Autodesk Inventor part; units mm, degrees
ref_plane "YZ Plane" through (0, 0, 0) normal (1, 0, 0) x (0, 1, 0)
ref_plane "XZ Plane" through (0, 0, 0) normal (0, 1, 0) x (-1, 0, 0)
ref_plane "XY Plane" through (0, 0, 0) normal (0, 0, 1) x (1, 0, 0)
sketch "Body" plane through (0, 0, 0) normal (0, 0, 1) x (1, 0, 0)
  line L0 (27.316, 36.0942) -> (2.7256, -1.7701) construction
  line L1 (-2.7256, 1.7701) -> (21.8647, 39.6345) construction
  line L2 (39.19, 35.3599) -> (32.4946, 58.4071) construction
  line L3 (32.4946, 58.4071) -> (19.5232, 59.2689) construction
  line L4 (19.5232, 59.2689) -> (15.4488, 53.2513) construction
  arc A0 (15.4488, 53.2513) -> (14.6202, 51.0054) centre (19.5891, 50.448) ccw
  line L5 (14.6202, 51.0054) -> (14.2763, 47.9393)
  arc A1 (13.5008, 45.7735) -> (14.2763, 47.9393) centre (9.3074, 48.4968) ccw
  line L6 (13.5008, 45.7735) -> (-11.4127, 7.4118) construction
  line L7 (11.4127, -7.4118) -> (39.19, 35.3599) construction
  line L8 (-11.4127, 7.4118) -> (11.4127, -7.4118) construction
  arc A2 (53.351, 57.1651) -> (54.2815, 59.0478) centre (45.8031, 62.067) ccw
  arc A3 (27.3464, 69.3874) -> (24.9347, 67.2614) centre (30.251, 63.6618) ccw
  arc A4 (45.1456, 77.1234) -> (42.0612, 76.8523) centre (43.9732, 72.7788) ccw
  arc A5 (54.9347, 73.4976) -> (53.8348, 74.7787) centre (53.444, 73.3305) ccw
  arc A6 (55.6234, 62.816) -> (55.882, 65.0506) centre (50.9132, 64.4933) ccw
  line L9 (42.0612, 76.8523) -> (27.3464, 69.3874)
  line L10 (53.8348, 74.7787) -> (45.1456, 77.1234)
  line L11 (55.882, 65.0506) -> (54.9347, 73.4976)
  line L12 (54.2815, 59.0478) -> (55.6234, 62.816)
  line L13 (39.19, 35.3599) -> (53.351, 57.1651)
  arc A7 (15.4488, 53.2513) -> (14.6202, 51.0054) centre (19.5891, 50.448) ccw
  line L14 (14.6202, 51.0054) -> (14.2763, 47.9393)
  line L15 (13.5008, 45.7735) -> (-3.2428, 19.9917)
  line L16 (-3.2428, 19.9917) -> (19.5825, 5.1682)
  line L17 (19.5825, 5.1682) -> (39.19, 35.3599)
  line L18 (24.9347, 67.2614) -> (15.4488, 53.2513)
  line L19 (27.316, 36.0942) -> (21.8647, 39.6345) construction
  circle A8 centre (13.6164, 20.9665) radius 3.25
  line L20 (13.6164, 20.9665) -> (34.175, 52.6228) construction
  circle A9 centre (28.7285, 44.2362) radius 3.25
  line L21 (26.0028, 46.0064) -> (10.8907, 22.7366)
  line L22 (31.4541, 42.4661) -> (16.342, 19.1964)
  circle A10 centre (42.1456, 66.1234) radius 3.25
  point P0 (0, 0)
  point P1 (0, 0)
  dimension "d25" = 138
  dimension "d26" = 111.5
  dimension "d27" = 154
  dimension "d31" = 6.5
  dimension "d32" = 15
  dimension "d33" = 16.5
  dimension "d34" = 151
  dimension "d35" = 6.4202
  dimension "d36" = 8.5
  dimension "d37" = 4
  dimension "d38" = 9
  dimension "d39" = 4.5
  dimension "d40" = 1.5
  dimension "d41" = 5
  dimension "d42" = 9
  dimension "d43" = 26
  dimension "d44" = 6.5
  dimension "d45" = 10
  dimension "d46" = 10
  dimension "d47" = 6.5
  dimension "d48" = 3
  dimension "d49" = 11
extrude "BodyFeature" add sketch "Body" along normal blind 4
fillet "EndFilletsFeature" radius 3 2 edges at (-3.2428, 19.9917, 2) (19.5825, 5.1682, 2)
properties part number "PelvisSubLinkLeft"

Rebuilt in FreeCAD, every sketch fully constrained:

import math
import FreeCAD as App
import Part
import Sketcher
from FreeCAD import Vector


def edges_at(feature, points):
    """Names of the edges that pass closest to the given points."""
    edges = feature.Shape.Edges
    near = lambda p: min(range(len(edges)), key=lambda i: edges[i].distToShape(Part.Vertex(*p))[0])
    return sorted({f"Edge{near(p) + 1}" for p in points})

doc = App.newDocument("Part")
body = doc.addObject("PartDesign::Body", "Body")

sketch1 = body.newObject("Sketcher::SketchObject", "Sketch")
sketch1.AttachmentSupport = (doc.getObject("XY_Plane"), [""])
sketch1.MapMode = "FlatFace"
sketch1.addGeometry([
    Part.LineSegment(Vector(24.9347, 67.2614, 0), Vector(15.4488, 53.2513, 0)),
    Part.ArcOfCircle(Part.Circle(Vector(19.5891, 50.448, 0), Vector(0, 0, 1), 5.000057), math.radians(145.898993), math.radians(173.599447)),
    Part.LineSegment(Vector(14.6202, 51.0054, 0), Vector(14.2763, 47.9393, 0)),
    Part.ArcOfCircle(Part.Circle(Vector(9.3074, 48.4968, 0), Vector(0, 0, 1), 5.000097), math.radians(-33.000713), math.radians(-6.401692)),
    Part.LineSegment(Vector(13.5008, 45.7735, 0), Vector(-3.2428, 19.9917, 0)),
    Part.LineSegment(Vector(-3.2428, 19.9917, 0), Vector(19.5825, 5.1682, 0)),
    Part.LineSegment(Vector(19.5825, 5.1682, 0), Vector(39.19, 35.3599, 0)),
    Part.LineSegment(Vector(39.19, 35.3599, 0), Vector(53.351, 57.1651, 0)),
    Part.ArcOfCircle(Part.Circle(Vector(45.805163, 62.065826, 0), Vector(0, 0, 1), 8.997598), math.radians(-33.002146), math.radians(-19.598427)),
    Part.LineSegment(Vector(54.2815, 59.0478, 0), Vector(55.6234, 62.816, 0)),
    Part.ArcOfCircle(Part.Circle(Vector(50.9132, 64.4933, 0), Vector(0, 0, 1), 4.999932), math.radians(-19.60079), math.radians(6.399542)),
    Part.LineSegment(Vector(55.882, 65.0506, 0), Vector(54.9347, 73.4976, 0)),
    Part.ArcOfCircle(Part.Circle(Vector(53.444, 73.3305, 0), Vector(0, 0, 1), 1.500036), math.radians(6.39587), math.radians(74.898316)),
    Part.LineSegment(Vector(53.8348, 74.7787, 0), Vector(45.1456, 77.1234, 0)),
    Part.ArcOfCircle(Part.Circle(Vector(43.9732, 72.7788, 0), Vector(0, 0, 1), 4.500008), math.radians(74.898316), math.radians(115.144198)),
    Part.LineSegment(Vector(42.0612, 76.8523, 0), Vector(27.3464, 69.3874, 0)),
    Part.ArcOfCircle(Part.Circle(Vector(30.251671, 63.660811, 0), Vector(0, 0, 1), 6.421403), math.radians(116.900051), math.radians(145.894614)),
    Part.ArcOfCircle(Part.Circle(Vector(13.6164, 20.9665, 0), Vector(0, 0, 1), 3.25), math.radians(146.999856), math.radians(326.998896)),
    Part.LineSegment(Vector(10.8907, 22.7366, 0), Vector(26.0028, 46.0064, 0)),
    Part.ArcOfCircle(Part.Circle(Vector(28.7285, 44.2362, 0), Vector(0, 0, 1), 3.25), math.radians(-33.001104), math.radians(146.998378)),
    Part.LineSegment(Vector(31.4541, 42.4661, 0), Vector(16.342, 19.1964, 0)),
    Part.Circle(Vector(42.1456, 66.1234, 0), Vector(0, 0, 1), 3.25),
], False)
sketch1.addConstraint([
    Sketcher.Constraint("Coincident", 0, 2, 1, 1),
    Sketcher.Constraint("Coincident", 1, 2, 2, 1),
    Sketcher.Constraint("Coincident", 2, 2, 3, 2),
    Sketcher.Constraint("Coincident", 3, 1, 4, 1),
    Sketcher.Constraint("Coincident", 4, 2, 5, 1),
    Sketcher.Constraint("Coincident", 5, 2, 6, 1),
    Sketcher.Constraint("Coincident", 6, 2, 7, 1),
    Sketcher.Constraint("Coincident", 7, 2, 8, 1),
    Sketcher.Constraint("Coincident", 8, 2, 9, 1),
    Sketcher.Constraint("Coincident", 9, 2, 10, 1),
    Sketcher.Constraint("Coincident", 10, 2, 11, 1),
    Sketcher.Constraint("Coincident", 11, 2, 12, 1),
    Sketcher.Constraint("Coincident", 12, 2, 13, 1),
    Sketcher.Constraint("Coincident", 13, 2, 14, 1),
    Sketcher.Constraint("Coincident", 14, 2, 15, 1),
    Sketcher.Constraint("Coincident", 15, 2, 16, 1),
    Sketcher.Constraint("Coincident", 16, 2, 0, 1),
    Sketcher.Constraint("Coincident", 17, 1, 18, 1),
    Sketcher.Constraint("Coincident", 18, 2, 19, 2),
    Sketcher.Constraint("Coincident", 19, 1, 20, 1),
    Sketcher.Constraint("Coincident", 20, 2, 17, 2),
    Sketcher.Constraint("Radius", 1, 5.0),
    Sketcher.Constraint("Radius", 3, 5.0),
    Sketcher.Constraint("Radius", 10, 5.0),
    Sketcher.Constraint("Diameter", 21, 6.5),
    Sketcher.Constraint("Radius", 12, 1.5),
    Sketcher.Constraint("Radius", 14, 4.5),
    Sketcher.Constraint("Radius", 17, 3.25),
    Sketcher.Constraint("Radius", 19, 3.25),
    Sketcher.Constraint("Distance", 7, 26.0),
    Sketcher.Constraint("Distance", 9, 4.0),
    Sketcher.Constraint("Distance", 13, 9.0),
    Sketcher.Constraint("DistanceX", 21, 3, 13, 2, 3.0),
    Sketcher.Constraint("DistanceY", 21, 3, 13, 2, 11.0),
    Sketcher.Constraint("Distance", 11, 8.5),
    Sketcher.Constraint("Distance", 15, 16.5),
    Sketcher.Constraint("Distance", 6, 36.0),
    Sketcher.Constraint("DistanceY", 14, 3, 12, 2, 2.0),
    Sketcher.Constraint("Radius", 8, 8.9976),
    Sketcher.Constraint("Radius", 16, 6.4214),
    Sketcher.Constraint("DistanceX", 12, 2, 11, 2, 1.1),
    Sketcher.Constraint("DistanceX", -1, 1, 6, 2, 39.19),
    Sketcher.Constraint("DistanceY", -1, 1, 6, 2, 35.36),
    Sketcher.Constraint("DistanceX", 14, 3, 10, 3, 6.94),
    Sketcher.Constraint("DistanceY", 10, 3, 21, 3, 1.63),
    Sketcher.Constraint("DistanceY", 10, 2, 12, 3, 8.28),
    Sketcher.Constraint("DistanceY", 0, 2, 16, 2, 14.01),
    Sketcher.Constraint("DistanceY", 17, 3, 17, 1, 1.77),
    Sketcher.Constraint("DistanceX", 17, 1, 3, 1, 2.61),
    Sketcher.Constraint("DistanceY", 20, 2, 17, 3, 1.77),
    Sketcher.Constraint("DistanceX", -1, 1, 1, 3, 19.589),
    Sketcher.Constraint("DistanceY", -1, 1, 1, 3, 50.448),
    Sketcher.Constraint("DistanceX", -1, 1, 12, 3, 53.444),
    Sketcher.Constraint("DistanceX", -1, 1, 7, 2, 53.351),
    Sketcher.Constraint("DistanceY", -1, 1, 9, 2, 62.816),
    Sketcher.Constraint("DistanceX", -1, 1, 10, 2, 55.882),
    Sketcher.Constraint("DistanceY", -1, 1, 19, 1, 42.466),
    Sketcher.Constraint("DistanceX", -1, 1, 20, 2, 16.342),
    Sketcher.Constraint("DistanceX", 1, 3, 8, 3, 26.216),
    Sketcher.Constraint("DistanceY", 3, 3, 8, 3, 13.569),
    Sketcher.Constraint("DistanceY", 8, 3, 14, 3, 10.713),
    Sketcher.Constraint("DistanceY", 8, 3, 16, 3, 1.595),
    Sketcher.Constraint("DistanceX", 3, 3, 17, 3, 4.309),
    Sketcher.Constraint("DistanceX", 3, 3, 19, 3, 19.421),
    Sketcher.Constraint("DistanceX", 16, 3, 21, 3, 11.894),
    Sketcher.Constraint("DistanceY", 19, 3, 0, 2, 9.015),
    Sketcher.Constraint("DistanceY", 0, 2, 21, 3, 12.872),
    Sketcher.Constraint("DistanceY", 1, 2, 0, 2, 2.246),
    Sketcher.Constraint("DistanceX", 2, 2, 1, 2, 0.344),
    Sketcher.Constraint("DistanceY", 4, 2, 3, 3, 28.505),
    Sketcher.Constraint("DistanceX", 4, 2, 2, 2, 17.519),
    Sketcher.Constraint("DistanceX", 17, 3, 5, 2, 5.966),
    Sketcher.Constraint("DistanceY", 14, 2, 13, 2, 0.271),
    Sketcher.Constraint("DistanceY", 4, 2, 17, 1, 2.745),
    Sketcher.Constraint("DistanceY", 18, 2, 2, 2, 1.933),
])
pad1 = body.newObject("PartDesign::Pad", "Pad")
pad1.Profile = sketch1
pad1.Length = 4
doc.recompute()

fillet = body.newObject("PartDesign::Fillet", "Fillet")
fillet.Base = (pad1, edges_at(pad1, [(-3.243, 19.992, 2), (19.582, 5.168, 2)]))
fillet.Radius = 3

doc.recompute()
